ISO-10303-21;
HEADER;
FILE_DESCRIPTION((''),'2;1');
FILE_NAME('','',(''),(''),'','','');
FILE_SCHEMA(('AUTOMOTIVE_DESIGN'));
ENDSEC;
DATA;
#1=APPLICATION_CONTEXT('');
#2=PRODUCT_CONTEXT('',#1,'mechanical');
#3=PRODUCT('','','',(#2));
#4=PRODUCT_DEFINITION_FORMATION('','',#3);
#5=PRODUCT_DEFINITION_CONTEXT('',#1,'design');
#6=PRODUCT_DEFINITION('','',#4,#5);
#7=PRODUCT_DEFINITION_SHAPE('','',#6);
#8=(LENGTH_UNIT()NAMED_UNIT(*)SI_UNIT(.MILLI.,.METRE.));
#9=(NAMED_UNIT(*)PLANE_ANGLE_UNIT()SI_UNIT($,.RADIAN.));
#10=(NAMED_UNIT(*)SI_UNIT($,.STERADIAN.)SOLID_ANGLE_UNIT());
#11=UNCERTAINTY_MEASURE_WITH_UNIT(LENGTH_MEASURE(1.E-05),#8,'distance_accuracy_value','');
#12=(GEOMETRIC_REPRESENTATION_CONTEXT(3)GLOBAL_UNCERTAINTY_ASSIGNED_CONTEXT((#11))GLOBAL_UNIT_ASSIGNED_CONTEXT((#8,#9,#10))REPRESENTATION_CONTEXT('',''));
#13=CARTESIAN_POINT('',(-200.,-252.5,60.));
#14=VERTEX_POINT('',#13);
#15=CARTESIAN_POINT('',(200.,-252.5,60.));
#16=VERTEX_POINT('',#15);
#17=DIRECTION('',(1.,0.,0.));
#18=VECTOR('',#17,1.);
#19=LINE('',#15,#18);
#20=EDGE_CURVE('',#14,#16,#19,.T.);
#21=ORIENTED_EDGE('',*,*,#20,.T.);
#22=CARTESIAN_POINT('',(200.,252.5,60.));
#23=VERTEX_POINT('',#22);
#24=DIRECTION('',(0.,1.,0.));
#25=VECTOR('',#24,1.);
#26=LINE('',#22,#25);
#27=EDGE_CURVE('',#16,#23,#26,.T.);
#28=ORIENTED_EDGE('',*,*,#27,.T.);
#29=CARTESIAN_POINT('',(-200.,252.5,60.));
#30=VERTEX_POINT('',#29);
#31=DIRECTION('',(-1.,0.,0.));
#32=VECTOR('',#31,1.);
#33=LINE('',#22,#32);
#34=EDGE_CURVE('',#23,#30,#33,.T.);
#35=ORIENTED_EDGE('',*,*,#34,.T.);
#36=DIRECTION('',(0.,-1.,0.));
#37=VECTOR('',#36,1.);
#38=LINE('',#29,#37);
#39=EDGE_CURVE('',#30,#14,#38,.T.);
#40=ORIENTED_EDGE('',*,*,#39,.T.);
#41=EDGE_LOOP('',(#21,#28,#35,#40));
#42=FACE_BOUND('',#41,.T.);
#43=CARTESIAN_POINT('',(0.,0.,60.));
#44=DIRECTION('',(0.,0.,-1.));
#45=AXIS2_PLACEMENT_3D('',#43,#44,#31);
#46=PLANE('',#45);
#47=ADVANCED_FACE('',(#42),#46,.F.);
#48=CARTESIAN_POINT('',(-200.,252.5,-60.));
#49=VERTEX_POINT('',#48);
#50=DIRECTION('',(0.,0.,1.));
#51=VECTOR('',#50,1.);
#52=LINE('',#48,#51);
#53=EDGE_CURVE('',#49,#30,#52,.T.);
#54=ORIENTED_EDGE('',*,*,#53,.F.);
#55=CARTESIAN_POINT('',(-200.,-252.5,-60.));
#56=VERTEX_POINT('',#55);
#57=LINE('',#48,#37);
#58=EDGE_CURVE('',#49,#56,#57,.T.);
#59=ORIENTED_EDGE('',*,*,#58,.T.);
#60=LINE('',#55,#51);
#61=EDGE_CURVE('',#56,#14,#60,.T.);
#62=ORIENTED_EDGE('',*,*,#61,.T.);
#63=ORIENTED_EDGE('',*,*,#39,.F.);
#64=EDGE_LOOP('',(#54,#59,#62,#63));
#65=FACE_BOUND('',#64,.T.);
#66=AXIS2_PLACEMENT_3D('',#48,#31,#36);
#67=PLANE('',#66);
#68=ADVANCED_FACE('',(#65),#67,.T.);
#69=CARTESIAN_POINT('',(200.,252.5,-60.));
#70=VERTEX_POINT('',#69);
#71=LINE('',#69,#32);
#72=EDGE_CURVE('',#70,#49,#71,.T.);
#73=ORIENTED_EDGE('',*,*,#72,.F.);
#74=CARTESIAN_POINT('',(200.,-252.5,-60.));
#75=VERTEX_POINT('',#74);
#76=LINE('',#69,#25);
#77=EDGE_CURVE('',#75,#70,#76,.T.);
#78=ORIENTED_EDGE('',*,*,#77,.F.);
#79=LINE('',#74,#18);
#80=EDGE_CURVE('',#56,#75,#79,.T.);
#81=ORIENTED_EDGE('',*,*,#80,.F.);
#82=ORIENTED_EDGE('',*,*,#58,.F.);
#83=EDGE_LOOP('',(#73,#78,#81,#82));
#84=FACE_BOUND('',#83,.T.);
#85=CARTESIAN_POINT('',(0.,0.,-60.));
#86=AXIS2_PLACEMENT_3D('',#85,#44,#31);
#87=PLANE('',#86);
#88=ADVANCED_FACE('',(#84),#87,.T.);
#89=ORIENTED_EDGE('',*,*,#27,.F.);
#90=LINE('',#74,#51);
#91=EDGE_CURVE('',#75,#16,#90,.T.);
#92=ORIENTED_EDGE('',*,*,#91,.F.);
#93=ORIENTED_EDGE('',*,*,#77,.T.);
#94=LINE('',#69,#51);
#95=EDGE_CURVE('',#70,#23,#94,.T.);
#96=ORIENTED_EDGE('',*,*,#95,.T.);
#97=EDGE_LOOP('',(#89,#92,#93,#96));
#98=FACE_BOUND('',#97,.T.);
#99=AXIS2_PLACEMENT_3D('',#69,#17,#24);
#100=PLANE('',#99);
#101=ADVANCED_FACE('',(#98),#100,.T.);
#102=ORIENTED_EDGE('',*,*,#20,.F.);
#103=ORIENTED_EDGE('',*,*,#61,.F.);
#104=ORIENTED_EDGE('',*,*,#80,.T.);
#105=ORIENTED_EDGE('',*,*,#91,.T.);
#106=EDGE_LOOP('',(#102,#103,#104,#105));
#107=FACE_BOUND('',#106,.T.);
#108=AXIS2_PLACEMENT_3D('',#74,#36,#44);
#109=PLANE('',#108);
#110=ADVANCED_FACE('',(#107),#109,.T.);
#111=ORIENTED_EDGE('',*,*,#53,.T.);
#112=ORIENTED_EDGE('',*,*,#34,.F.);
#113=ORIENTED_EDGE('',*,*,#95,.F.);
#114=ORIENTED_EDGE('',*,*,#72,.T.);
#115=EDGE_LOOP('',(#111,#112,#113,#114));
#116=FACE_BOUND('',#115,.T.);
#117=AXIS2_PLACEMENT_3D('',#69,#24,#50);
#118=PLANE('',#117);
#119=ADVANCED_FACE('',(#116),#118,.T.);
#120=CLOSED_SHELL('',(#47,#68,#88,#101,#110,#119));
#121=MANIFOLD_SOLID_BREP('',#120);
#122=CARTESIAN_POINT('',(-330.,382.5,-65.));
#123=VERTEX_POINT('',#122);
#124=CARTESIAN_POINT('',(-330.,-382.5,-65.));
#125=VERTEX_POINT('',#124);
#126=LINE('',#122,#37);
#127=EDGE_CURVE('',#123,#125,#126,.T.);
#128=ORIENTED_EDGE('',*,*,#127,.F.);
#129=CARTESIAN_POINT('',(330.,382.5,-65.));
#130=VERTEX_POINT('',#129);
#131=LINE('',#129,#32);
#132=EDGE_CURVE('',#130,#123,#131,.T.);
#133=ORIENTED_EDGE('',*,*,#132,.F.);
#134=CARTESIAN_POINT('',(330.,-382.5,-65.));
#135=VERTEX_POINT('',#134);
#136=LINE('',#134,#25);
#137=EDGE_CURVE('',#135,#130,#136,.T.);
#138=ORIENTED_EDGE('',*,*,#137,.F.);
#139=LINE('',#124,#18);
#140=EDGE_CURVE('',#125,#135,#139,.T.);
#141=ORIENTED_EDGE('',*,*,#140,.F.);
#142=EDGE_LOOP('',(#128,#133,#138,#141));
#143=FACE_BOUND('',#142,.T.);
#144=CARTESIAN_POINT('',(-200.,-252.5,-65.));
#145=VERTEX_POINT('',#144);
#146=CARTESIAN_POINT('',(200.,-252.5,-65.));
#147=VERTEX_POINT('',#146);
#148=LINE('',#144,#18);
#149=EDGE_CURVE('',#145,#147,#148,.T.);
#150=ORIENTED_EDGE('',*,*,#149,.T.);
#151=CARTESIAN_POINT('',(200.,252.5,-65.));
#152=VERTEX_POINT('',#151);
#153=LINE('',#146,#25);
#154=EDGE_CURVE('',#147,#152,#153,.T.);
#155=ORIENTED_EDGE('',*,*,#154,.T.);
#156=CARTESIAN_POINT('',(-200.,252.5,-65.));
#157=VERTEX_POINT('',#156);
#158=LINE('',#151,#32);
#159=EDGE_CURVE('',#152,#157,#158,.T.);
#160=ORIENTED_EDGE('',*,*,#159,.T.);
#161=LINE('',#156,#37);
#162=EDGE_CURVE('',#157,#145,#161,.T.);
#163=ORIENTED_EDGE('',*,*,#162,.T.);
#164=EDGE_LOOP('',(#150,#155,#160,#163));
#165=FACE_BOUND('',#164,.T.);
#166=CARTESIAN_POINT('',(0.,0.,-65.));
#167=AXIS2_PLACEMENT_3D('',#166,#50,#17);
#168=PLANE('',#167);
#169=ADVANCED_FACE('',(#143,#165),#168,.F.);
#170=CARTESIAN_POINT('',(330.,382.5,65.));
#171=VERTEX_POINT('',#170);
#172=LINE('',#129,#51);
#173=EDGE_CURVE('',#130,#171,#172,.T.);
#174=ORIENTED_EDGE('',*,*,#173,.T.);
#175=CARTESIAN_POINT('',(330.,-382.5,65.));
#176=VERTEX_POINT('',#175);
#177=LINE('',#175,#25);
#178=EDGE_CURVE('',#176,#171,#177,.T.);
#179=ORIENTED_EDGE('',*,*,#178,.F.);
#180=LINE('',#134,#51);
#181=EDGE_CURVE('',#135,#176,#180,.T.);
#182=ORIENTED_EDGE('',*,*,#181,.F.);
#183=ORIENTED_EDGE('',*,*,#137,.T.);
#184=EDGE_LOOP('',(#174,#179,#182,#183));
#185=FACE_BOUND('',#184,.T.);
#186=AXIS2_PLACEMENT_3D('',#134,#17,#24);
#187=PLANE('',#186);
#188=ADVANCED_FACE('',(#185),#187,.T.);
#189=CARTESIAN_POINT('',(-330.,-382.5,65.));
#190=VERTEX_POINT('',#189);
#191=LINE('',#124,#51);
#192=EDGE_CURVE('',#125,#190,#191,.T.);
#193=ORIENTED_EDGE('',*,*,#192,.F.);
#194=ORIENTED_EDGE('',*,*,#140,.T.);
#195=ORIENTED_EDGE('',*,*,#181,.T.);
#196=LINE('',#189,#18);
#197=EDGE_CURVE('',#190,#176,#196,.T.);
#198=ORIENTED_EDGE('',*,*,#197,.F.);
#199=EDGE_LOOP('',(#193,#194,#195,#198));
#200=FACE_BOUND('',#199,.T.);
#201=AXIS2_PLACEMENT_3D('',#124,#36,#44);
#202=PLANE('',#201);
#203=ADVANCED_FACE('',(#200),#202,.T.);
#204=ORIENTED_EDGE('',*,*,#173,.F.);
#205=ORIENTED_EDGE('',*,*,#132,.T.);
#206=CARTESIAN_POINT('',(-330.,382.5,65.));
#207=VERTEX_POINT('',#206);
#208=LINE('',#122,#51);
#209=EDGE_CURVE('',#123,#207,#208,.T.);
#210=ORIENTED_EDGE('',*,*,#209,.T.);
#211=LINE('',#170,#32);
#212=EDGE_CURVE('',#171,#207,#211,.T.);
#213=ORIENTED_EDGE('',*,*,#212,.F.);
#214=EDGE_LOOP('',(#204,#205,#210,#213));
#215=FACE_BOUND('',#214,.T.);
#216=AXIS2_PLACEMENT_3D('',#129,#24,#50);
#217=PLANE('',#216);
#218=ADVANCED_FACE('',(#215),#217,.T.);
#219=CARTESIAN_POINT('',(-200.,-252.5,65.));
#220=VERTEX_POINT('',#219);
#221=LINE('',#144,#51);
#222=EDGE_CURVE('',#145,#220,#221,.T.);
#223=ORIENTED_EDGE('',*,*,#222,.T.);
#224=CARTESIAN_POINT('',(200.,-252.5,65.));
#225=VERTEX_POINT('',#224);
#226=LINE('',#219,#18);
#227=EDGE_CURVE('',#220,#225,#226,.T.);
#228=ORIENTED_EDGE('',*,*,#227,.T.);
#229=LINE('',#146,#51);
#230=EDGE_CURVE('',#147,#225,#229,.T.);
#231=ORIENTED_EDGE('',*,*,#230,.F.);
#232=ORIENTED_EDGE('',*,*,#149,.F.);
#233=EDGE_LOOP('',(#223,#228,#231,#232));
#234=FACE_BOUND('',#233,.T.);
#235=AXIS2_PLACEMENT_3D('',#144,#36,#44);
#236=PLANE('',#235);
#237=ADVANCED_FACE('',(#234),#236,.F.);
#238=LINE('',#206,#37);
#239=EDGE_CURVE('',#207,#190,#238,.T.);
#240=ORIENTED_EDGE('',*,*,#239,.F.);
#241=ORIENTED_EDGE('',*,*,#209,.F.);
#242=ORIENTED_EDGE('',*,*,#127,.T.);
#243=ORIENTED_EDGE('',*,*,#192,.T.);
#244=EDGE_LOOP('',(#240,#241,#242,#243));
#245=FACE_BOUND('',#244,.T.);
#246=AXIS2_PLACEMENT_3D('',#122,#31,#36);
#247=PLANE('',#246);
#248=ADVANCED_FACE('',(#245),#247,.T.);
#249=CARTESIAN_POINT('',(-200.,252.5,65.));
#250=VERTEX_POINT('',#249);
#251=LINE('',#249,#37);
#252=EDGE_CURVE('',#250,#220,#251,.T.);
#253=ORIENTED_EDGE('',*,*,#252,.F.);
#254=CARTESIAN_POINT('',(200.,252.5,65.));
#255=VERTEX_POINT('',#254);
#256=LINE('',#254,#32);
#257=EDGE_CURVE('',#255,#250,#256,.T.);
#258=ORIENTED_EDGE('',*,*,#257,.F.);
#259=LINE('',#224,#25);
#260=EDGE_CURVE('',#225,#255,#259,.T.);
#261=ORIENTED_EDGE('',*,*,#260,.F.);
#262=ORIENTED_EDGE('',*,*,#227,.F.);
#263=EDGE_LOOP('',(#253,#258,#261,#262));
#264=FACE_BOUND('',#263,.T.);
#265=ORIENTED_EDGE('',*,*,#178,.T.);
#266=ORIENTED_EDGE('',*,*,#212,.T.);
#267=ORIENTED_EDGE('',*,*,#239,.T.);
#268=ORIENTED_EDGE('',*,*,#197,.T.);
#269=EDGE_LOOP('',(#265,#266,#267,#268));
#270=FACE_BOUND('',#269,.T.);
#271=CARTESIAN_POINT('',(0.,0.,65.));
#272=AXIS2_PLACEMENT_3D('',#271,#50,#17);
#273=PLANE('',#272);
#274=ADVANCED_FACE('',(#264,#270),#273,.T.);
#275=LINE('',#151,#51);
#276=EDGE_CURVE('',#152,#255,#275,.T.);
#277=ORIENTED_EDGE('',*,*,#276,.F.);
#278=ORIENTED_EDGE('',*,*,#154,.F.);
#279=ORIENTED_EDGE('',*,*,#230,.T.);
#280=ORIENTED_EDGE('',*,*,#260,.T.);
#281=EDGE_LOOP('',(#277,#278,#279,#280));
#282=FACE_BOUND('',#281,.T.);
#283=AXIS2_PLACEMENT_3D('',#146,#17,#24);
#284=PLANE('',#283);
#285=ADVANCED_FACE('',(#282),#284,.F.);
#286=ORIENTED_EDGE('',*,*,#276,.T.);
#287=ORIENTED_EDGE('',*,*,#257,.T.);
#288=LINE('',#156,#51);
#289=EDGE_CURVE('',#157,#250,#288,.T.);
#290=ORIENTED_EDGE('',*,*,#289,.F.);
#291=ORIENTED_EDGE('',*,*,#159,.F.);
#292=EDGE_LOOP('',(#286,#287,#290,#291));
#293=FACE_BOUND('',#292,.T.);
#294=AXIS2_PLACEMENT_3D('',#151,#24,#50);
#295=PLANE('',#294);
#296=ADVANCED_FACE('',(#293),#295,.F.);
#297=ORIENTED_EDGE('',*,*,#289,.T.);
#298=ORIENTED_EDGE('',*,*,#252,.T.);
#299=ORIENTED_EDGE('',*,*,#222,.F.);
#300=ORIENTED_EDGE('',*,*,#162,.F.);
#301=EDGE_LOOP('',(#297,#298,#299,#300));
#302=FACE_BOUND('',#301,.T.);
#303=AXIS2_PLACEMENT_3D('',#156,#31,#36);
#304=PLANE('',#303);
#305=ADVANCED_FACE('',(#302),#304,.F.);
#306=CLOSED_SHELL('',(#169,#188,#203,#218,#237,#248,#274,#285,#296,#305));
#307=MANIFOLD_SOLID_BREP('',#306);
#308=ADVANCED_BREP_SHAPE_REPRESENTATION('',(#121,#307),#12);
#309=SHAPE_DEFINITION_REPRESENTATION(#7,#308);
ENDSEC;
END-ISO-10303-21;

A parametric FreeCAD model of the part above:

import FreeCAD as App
import Part
import Sketcher
Q = App.Units.Quantity


def add_polygon(sketch, points):
    """Adds a closed chain of lines whose ends are joined by coincident constraints."""
    first, n = sketch.GeometryCount, len(points)
    for a, b in zip(points, points[1:] + points[:1]):
        sketch.addGeometry(Part.LineSegment(App.Vector(*a, 0), App.Vector(*b, 0)), False)
    for i in range(n):
        sketch.addConstraint(Sketcher.Constraint("Coincident", first + i, 2, first + (i + 1) % n, 1))

doc = App.newDocument("Part")
body = doc.addObject("PartDesign::Body", "Body")

sketch1 = body.newObject("Sketcher::SketchObject", "Sketch")
sketch1.AttachmentSupport = (doc.getObject("XY_Plane"), [""])
sketch1.MapMode = "FlatFace"
add_polygon(sketch1, [(-200, 252), (-200, -252), (200, -252), (200, 252)])
sketch1.addConstraint([
    Sketcher.Constraint("Vertical", 0),
    Sketcher.Constraint("Horizontal", 1),
    Sketcher.Constraint("Vertical", 2),
    Sketcher.Constraint("Horizontal", 3),
    Sketcher.Constraint("Symmetric", 0, 2, 2, 2, -1, 1),
    Sketcher.Constraint("DistanceX", 1, 1, 1, 2, Q("400 mm")),
    Sketcher.Constraint("DistanceY", 0, 2, 0, 1, Q("505 mm")),
])
pad1 = body.newObject("PartDesign::Pad", "Pad")
pad1.Profile = sketch1
pad1.Type = "TwoLengths"
pad1.Length = 60
pad1.Length2 = 60
body2 = doc.addObject("PartDesign::Body", "Body001")

sketch2 = body2.newObject("Sketcher::SketchObject", "Sketch001")
sketch2.AttachmentSupport = (doc.getObject("XY_Plane001"), [""])
sketch2.MapMode = "FlatFace"
add_polygon(sketch2, [(-330, 382), (-330, -382), (330, -382), (330, 382)])
add_polygon(sketch2, [(200, -252), (-200, -252), (-200, 252), (200, 252)])
sketch2.addConstraint([
    Sketcher.Constraint("Vertical", 0),
    Sketcher.Constraint("Horizontal", 1),
    Sketcher.Constraint("Vertical", 2),
    Sketcher.Constraint("Horizontal", 3),
    Sketcher.Constraint("Horizontal", 4),
    Sketcher.Constraint("Vertical", 5),
    Sketcher.Constraint("Horizontal", 6),
    Sketcher.Constraint("Vertical", 7),
    Sketcher.Constraint("Symmetric", 0, 2, 2, 2, -1, 1),
    Sketcher.Constraint("Symmetric", 4, 2, 6, 2, -1, 1),
    Sketcher.Constraint("DistanceX", 1, 1, 1, 2, Q("660 mm")),
    Sketcher.Constraint("DistanceX", 4, 2, 4, 1, Q("400 mm")),
    Sketcher.Constraint("DistanceY", 0, 2, 0, 1, Q("765 mm")),
    Sketcher.Constraint("DistanceY", 5, 1, 5, 2, Q("505 mm")),
])
pad2 = body2.newObject("PartDesign::Pad", "Pad001")
pad2.Profile = sketch2
pad2.Type = "TwoLengths"
pad2.Length = 65
pad2.Length2 = 65

doc.recompute()
